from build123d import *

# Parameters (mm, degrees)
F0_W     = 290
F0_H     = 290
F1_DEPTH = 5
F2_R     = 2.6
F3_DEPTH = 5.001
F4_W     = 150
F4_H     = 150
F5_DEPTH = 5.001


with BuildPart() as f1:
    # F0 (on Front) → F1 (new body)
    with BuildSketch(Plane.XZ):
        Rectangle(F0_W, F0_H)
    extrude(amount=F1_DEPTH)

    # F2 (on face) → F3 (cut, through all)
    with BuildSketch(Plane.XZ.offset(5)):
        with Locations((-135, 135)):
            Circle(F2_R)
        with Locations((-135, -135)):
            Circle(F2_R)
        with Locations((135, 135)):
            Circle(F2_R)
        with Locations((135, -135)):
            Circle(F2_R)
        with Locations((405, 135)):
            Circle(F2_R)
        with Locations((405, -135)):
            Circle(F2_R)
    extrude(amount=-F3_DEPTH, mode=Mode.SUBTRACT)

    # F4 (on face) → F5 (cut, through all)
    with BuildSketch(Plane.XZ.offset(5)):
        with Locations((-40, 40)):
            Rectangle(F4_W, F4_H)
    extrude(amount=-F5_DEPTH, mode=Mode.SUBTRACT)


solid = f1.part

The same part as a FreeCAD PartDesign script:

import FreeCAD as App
import Part
import Sketcher
from FreeCAD import Vector


def add_polygon(sketch, points):
    """Adds a closed chain of lines whose ends are joined by coincident constraints."""
    first, n = sketch.GeometryCount, len(points)
    for a, b in zip(points, points[1:] + points[:1]):
        sketch.addGeometry(Part.LineSegment(App.Vector(*a, 0), App.Vector(*b, 0)), False)
    for i in range(n):
        sketch.addConstraint(Sketcher.Constraint("Coincident", first + i, 2, first + (i + 1) % n, 1))

doc = App.newDocument("Part")
body = doc.addObject("PartDesign::Body", "Body")

# Sketch on XZ plane
sketch1 = doc.addObject("Sketcher::SketchObject", "Sketch")
body.addObject(sketch1)
sketch1.AttachmentSupport = (doc.XZ_Plane, [""])
sketch1.MapMode = "FlatFace"
add_polygon(sketch1, [(-145, 145), (-145, -145), (145, -145), (145, 145)])  # lines 0-3
sketch1.addConstraint([
    Sketcher.Constraint("Vertical", 0),
    Sketcher.Constraint("Horizontal", 1),
    Sketcher.Constraint("Vertical", 2),
    Sketcher.Constraint("Horizontal", 3),
    Sketcher.Constraint("Symmetric", 0, 2, 2, 2, -1, 1),
    Sketcher.Constraint("Equal", 3, 0),
    Sketcher.Constraint("DistanceX", 1, 1, 1, 2, 290.0),
])
pad1 = doc.addObject("PartDesign::Pad", "Pad")
body.addObject(pad1)
pad1.Profile = sketch1
pad1.Length = 5

# Sketch on XZ plane
sketch2 = doc.addObject("Sketcher::SketchObject", "Sketch001")
body.addObject(sketch2)
sketch2.AttachmentSupport = (doc.XZ_Plane, [""])
sketch2.MapMode = "FlatFace"
sketch2.AttachmentOffset = App.Placement(Vector(0, 0, 5), App.Rotation())
sketch2.addGeometry([
    Part.Circle(Vector(-135, 135, 0), Vector(0, 0, 1), 2.6),  # 0
    Part.Circle(Vector(-135, -135, 0), Vector(0, 0, 1), 2.6),  # 1
    Part.Circle(Vector(135, 135, 0), Vector(0, 0, 1), 2.6),  # 2
    Part.Circle(Vector(135, -135, 0), Vector(0, 0, 1), 2.6),  # 3
    Part.Circle(Vector(405, 135, 0), Vector(0, 0, 1), 2.6),  # 4
    Part.Circle(Vector(405, -135, 0), Vector(0, 0, 1), 2.6),  # 5
], False)
sketch2.addConstraint([
    Sketcher.Constraint("Equal", 0, 1),
    Sketcher.Constraint("Equal", 1, 2),
    Sketcher.Constraint("Equal", 2, 3),
    Sketcher.Constraint("Equal", 3, 4),
    Sketcher.Constraint("Equal", 4, 5),
    Sketcher.Constraint("Symmetric", 1, 3, 2, 3, -1, 1),
    Sketcher.Constraint("Symmetric", 0, 3, 3, 3, -1, 1),
    Sketcher.Constraint("Symmetric", 0, 3, 2, 3, -2),
    Sketcher.Constraint("Symmetric", 4, 3, 5, 3, -1),
    Sketcher.Constraint("Horizontal", 2, 3, 4, 3),
    Sketcher.Constraint("Diameter", 0, 5.2),
    Sketcher.Constraint("DistanceX", 0, 3, -1, 1, 135.0),
    Sketcher.Constraint("DistanceY", -1, 1, 0, 3, 135.0),
    Sketcher.Constraint("DistanceX", -1, 1, 4, 3, 405.0),
])
pocket1 = doc.addObject("PartDesign::Pocket", "Pocket")
body.addObject(pocket1)
pocket1.Profile = sketch2
pocket1.Type = "ThroughAll"

# Sketch on XZ plane
sketch3 = doc.addObject("Sketcher::SketchObject", "Sketch002")
body.addObject(sketch3)
sketch3.AttachmentSupport = (doc.XZ_Plane, [""])
sketch3.MapMode = "FlatFace"
sketch3.AttachmentOffset = App.Placement(Vector(0, 0, 5), App.Rotation())
add_polygon(sketch3, [(-115, 115), (-115, -35), (35, -35), (35, 115)])  # lines 0-3
sketch3.addConstraint([
    Sketcher.Constraint("Vertical", 0),
    Sketcher.Constraint("Horizontal", 1),
    Sketcher.Constraint("Vertical", 2),
    Sketcher.Constraint("Horizontal", 3),
    Sketcher.Constraint("Equal", 3, 0),
    Sketcher.Constraint("DistanceX", 1, 1, 1, 2, 150.0),
    Sketcher.Constraint("DistanceX", 0, 2, -1, 1, 115.0),
    Sketcher.Constraint("DistanceY", 0, 2, -1, 1, 35.0),
])
pocket2 = doc.addObject("PartDesign::Pocket", "Pocket001")
body.addObject(pocket2)
pocket2.Profile = sketch3
pocket2.Type = "ThroughAll"

doc.recompute()
